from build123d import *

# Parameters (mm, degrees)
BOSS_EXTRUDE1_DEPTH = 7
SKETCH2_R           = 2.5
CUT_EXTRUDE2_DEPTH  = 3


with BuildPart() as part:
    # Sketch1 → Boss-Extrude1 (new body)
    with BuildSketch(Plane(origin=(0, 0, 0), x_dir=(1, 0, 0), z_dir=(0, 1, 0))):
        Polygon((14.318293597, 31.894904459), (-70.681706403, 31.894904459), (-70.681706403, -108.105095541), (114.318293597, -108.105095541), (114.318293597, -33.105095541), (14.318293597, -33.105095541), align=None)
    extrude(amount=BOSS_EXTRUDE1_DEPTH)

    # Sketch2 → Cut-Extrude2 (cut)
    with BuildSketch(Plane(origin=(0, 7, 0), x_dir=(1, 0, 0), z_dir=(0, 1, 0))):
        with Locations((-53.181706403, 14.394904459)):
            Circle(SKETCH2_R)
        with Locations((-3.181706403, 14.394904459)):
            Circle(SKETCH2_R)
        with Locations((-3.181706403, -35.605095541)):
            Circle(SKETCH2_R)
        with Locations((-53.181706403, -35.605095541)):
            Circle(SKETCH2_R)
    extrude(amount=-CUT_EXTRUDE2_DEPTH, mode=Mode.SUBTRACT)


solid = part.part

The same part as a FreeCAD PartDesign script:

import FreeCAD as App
import Part
import Sketcher
from FreeCAD import Vector


def add_polygon(sketch, points):
    """Adds a closed chain of lines whose ends are joined by coincident constraints."""
    first, n = sketch.GeometryCount, len(points)
    for a, b in zip(points, points[1:] + points[:1]):
        sketch.addGeometry(Part.LineSegment(App.Vector(*a, 0), App.Vector(*b, 0)), False)
    for i in range(n):
        sketch.addConstraint(Sketcher.Constraint("Coincident", first + i, 2, first + (i + 1) % n, 1))

doc = App.newDocument("Part")
params = doc.addObject("Spreadsheet::Sheet", "Params")
for row, (alias, value) in enumerate([
    ("sketch1_width", "85 mm"),
    ("sketch1_width2", "185 mm"),
    ("sketch1_height", "140 mm"),
    ("sketch1_height2", "75 mm"),
    ("pad1_length", "7 mm"),
    ("sketch2_diameter", "5 mm"),
    ("pocket1_length", "3 mm"),
], start=1):
    params.set(f"A{row}", alias)
    params.set(f"B{row}", "=" + value)
    params.setAlias(f"B{row}", alias)

body = doc.addObject("PartDesign::Body", "Body")

sketch1 = doc.addObject("Sketcher::SketchObject", "Sketch")
body.addObject(sketch1)
sketch1.AttachmentSupport = (doc.XZ_Plane, [""])
sketch1.MapMode = "FlatFace"
add_polygon(sketch1, [(14, -32), (-71, -32), (-71, 108), (114, 108), (114, 33), (14, 33)])
sketch1.addConstraint([
    Sketcher.Constraint("Horizontal", 0),
    Sketcher.Constraint("Vertical", 1),
    Sketcher.Constraint("Horizontal", 2),
    Sketcher.Constraint("Vertical", 3),
    Sketcher.Constraint("Horizontal", 4),
    Sketcher.Constraint("Vertical", 5),
    Sketcher.Constraint("DistanceX", 0, 2, 0, 1, 85.0),
    Sketcher.Constraint("DistanceX", 2, 1, 2, 2, 185.0),
    Sketcher.Constraint("DistanceY", 1, 1, 1, 2, 140.0),
    Sketcher.Constraint("DistanceY", 3, 2, 3, 1, 75.0),
    Sketcher.Constraint("DistanceX", 0, 2, -1, 1, 70.681706),
    Sketcher.Constraint("DistanceY", 0, 2, -1, 1, 31.894904),
])
sketch1.setExpression("Constraints[12]", "Params.sketch1_width")
sketch1.setExpression("Constraints[13]", "Params.sketch1_width2")
sketch1.setExpression("Constraints[14]", "Params.sketch1_height")
sketch1.setExpression("Constraints[15]", "Params.sketch1_height2")
pad1 = doc.addObject("PartDesign::Pad", "Pad")
body.addObject(pad1)
pad1.Profile = sketch1
pad1.setExpression("Length", "Params.pad1_length")
pad1.Reversed = True

sketch2 = doc.addObject("Sketcher::SketchObject", "Sketch001")
body.addObject(sketch2)
sketch2.AttachmentSupport = (doc.XZ_Plane, [""])
sketch2.MapMode = "FlatFace"
sketch2.AttachmentOffset = App.Placement(Vector(0, 0, -7), App.Rotation())
sketch2.addGeometry([
    Part.Circle(Vector(-53.2, -14.4, 0), Vector(0, 0, 1), 2.5),
    Part.Circle(Vector(-3.2, -14.4, 0), Vector(0, 0, 1), 2.5),
    Part.Circle(Vector(-3.2, 35.6, 0), Vector(0, 0, 1), 2.5),
    Part.Circle(Vector(-53.2, 35.6, 0), Vector(0, 0, 1), 2.5),
], False)
sketch2.addConstraint([
    Sketcher.Constraint("Equal", 0, 1),
    Sketcher.Constraint("Equal", 1, 2),
    Sketcher.Constraint("Equal", 2, 3),
    Sketcher.Constraint("Horizontal", 0, 3, 1, 3),
    Sketcher.Constraint("Horizontal", 2, 3, 3, 3),
    Sketcher.Constraint("Vertical", 1, 3, 2, 3),
    Sketcher.Constraint("Vertical", 0, 3, 3, 3),
    Sketcher.Constraint("Diameter", 0, 5.0),
    Sketcher.Constraint("DistanceX", 0, 3, 1, 3, 50.0),
    Sketcher.Constraint("DistanceY", 1, 3, 2, 3, 50.0),
    Sketcher.Constraint("DistanceX", 0, 3, -1, 1, 53.181706),
    Sketcher.Constraint("DistanceY", 0, 3, -1, 1, 14.394904),
])
sketch2.setExpression("Constraints[7]", "Params.sketch2_diameter")
pocket1 = doc.addObject("PartDesign::Pocket", "Pocket")
body.addObject(pocket1)
pocket1.Profile = sketch2
pocket1.setExpression("Length", "Params.pocket1_length")
pocket1.Reversed = True

doc.recompute()
